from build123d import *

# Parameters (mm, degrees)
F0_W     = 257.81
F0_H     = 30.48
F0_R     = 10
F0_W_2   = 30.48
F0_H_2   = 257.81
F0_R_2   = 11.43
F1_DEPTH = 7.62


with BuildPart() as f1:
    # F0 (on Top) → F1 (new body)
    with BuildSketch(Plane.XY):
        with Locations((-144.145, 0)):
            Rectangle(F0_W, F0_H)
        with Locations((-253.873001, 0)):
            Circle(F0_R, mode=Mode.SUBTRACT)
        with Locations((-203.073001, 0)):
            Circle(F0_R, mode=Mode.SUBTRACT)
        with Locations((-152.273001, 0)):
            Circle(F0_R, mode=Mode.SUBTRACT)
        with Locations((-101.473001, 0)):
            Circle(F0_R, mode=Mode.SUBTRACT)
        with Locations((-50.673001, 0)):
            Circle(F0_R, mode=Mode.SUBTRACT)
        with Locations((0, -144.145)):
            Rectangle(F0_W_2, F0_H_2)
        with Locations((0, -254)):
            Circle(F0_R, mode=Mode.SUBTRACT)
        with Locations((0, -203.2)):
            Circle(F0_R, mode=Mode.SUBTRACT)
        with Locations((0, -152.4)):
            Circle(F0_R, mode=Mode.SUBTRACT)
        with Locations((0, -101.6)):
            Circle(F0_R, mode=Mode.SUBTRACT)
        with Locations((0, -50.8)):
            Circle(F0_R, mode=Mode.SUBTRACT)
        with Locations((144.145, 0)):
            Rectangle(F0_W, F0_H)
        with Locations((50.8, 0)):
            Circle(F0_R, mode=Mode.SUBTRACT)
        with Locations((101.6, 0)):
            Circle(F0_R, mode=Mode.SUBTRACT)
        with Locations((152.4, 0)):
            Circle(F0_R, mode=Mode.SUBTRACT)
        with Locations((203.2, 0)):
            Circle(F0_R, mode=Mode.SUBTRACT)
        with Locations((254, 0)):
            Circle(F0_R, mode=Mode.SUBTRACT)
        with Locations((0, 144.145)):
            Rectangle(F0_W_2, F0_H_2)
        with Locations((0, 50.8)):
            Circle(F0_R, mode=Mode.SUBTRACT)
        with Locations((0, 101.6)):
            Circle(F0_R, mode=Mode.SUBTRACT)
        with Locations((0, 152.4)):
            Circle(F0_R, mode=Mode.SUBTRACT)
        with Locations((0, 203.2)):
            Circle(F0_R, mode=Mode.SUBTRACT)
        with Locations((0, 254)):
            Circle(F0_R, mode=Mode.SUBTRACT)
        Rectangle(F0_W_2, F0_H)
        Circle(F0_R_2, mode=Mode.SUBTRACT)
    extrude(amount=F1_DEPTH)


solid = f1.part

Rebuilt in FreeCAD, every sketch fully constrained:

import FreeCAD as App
import Part
import Sketcher
from FreeCAD import Vector
Q = App.Units.Quantity

doc = App.newDocument("Part")
body = doc.addObject("PartDesign::Body", "Body")

sketch1 = body.newObject("Sketcher::SketchObject", "Sketch")
sketch1.AttachmentSupport = (doc.getObject("XY_Plane"), [""])
sketch1.MapMode = "FlatFace"
sketch1.addGeometry(Part.LineSegment(Vector(-273.05, 15.24, 0), Vector(-273.05, -15.24, 0)), False)
sketch1.addGeometry(Part.LineSegment(Vector(-273.05, -15.24, 0), Vector(-15.24, -15.24, 0)), False)
sketch1.addGeometry(Part.LineSegment(Vector(-15.24, -15.24, 0), Vector(-15.24, -273.05, 0)), False)
sketch1.addGeometry(Part.LineSegment(Vector(-15.24, -273.05, 0), Vector(15.24, -273.05, 0)), False)
sketch1.addGeometry(Part.LineSegment(Vector(15.24, -273.05, 0), Vector(15.24, -15.24, 0)), False)
sketch1.addGeometry(Part.LineSegment(Vector(15.24, -15.24, 0), Vector(273.05, -15.24, 0)), False)
sketch1.addGeometry(Part.LineSegment(Vector(273.05, -15.24, 0), Vector(273.05, 15.24, 0)), False)
sketch1.addGeometry(Part.LineSegment(Vector(273.05, 15.24, 0), Vector(15.24, 15.24, 0)), False)
sketch1.addGeometry(Part.LineSegment(Vector(15.24, 15.24, 0), Vector(15.24, 273.05, 0)), False)
sketch1.addGeometry(Part.LineSegment(Vector(15.24, 273.05, 0), Vector(-15.24, 273.05, 0)), False)
sketch1.addGeometry(Part.LineSegment(Vector(-15.24, 273.05, 0), Vector(-15.24, 15.24, 0)), False)
sketch1.addGeometry(Part.LineSegment(Vector(-15.24, 15.24, 0), Vector(-273.05, 15.24, 0)), False)
sketch1.addGeometry(Part.Circle(Vector(0, -254, 0), Vector(0, 0, 1), 10), False)
sketch1.addGeometry(Part.Circle(Vector(0, -203.2, 0), Vector(0, 0, 1), 10), False)
sketch1.addGeometry(Part.Circle(Vector(0, -152.4, 0), Vector(0, 0, 1), 10), False)
sketch1.addGeometry(Part.Circle(Vector(0, -101.6, 0), Vector(0, 0, 1), 10), False)
sketch1.addGeometry(Part.Circle(Vector(0, -50.8, 0), Vector(0, 0, 1), 10), False)
sketch1.addGeometry(Part.Circle(Vector(-253.873001, 0, 0), Vector(0, 0, 1), 10), False)
sketch1.addGeometry(Part.Circle(Vector(-203.073001, 0, 0), Vector(0, 0, 1), 10), False)
sketch1.addGeometry(Part.Circle(Vector(-152.273001, 0, 0), Vector(0, 0, 1), 10), False)
sketch1.addGeometry(Part.Circle(Vector(-101.473001, 0, 0), Vector(0, 0, 1), 10), False)
sketch1.addGeometry(Part.Circle(Vector(-50.673001, 0, 0), Vector(0, 0, 1), 10), False)
sketch1.addGeometry(Part.Circle(Vector(0, 0, 0), Vector(0, 0, 1), 11.43), False)
sketch1.addGeometry(Part.Circle(Vector(0, 50.8, 0), Vector(0, 0, 1), 10), False)
sketch1.addGeometry(Part.Circle(Vector(0, 101.6, 0), Vector(0, 0, 1), 10), False)
sketch1.addGeometry(Part.Circle(Vector(0, 152.4, 0), Vector(0, 0, 1), 10), False)
sketch1.addGeometry(Part.Circle(Vector(0, 203.2, 0), Vector(0, 0, 1), 10), False)
sketch1.addGeometry(Part.Circle(Vector(0, 254, 0), Vector(0, 0, 1), 10), False)
sketch1.addGeometry(Part.Circle(Vector(50.8, 0, 0), Vector(0, 0, 1), 10), False)
sketch1.addGeometry(Part.Circle(Vector(101.6, 0, 0), Vector(0, 0, 1), 10), False)
sketch1.addGeometry(Part.Circle(Vector(152.4, 0, 0), Vector(0, 0, 1), 10), False)
sketch1.addGeometry(Part.Circle(Vector(203.2, 0, 0), Vector(0, 0, 1), 10), False)
sketch1.addGeometry(Part.Circle(Vector(254, 0, 0), Vector(0, 0, 1), 10), False)
sketch1.addConstraint(Sketcher.Constraint("Coincident", 0, 2, 1, 1))
sketch1.addConstraint(Sketcher.Constraint("Coincident", 1, 2, 2, 1))
sketch1.addConstraint(Sketcher.Constraint("Coincident", 2, 2, 3, 1))
sketch1.addConstraint(Sketcher.Constraint("Coincident", 3, 2, 4, 1))
sketch1.addConstraint(Sketcher.Constraint("Coincident", 4, 2, 5, 1))
sketch1.addConstraint(Sketcher.Constraint("Coincident", 5, 2, 6, 1))
sketch1.addConstraint(Sketcher.Constraint("Coincident", 6, 2, 7, 1))
sketch1.addConstraint(Sketcher.Constraint("Coincident", 7, 2, 8, 1))
sketch1.addConstraint(Sketcher.Constraint("Coincident", 8, 2, 9, 1))
sketch1.addConstraint(Sketcher.Constraint("Coincident", 9, 2, 10, 1))
sketch1.addConstraint(Sketcher.Constraint("Coincident", 10, 2, 11, 1))
sketch1.addConstraint(Sketcher.Constraint("Coincident", 11, 2, 0, 1))
sketch1.addConstraint(Sketcher.Constraint("Vertical", 0))
sketch1.addConstraint(Sketcher.Constraint("Horizontal", 1))
sketch1.addConstraint(Sketcher.Constraint("Vertical", 2))
sketch1.addConstraint(Sketcher.Constraint("Horizontal", 3))
sketch1.addConstraint(Sketcher.Constraint("Vertical", 4))
sketch1.addConstraint(Sketcher.Constraint("Horizontal", 5))
sketch1.addConstraint(Sketcher.Constraint("Vertical", 6))
sketch1.addConstraint(Sketcher.Constraint("Horizontal", 7))
sketch1.addConstraint(Sketcher.Constraint("Vertical", 8))
sketch1.addConstraint(Sketcher.Constraint("Horizontal", 9))
sketch1.addConstraint(Sketcher.Constraint("Vertical", 10))
sketch1.addConstraint(Sketcher.Constraint("Horizontal", 11))
sketch1.addConstraint(Sketcher.Constraint("Coincident", 22, 3, -1, 1))
sketch1.addConstraint(Sketcher.Constraint("Equal", 12, 13))
sketch1.addConstraint(Sketcher.Constraint("Equal", 13, 14))
sketch1.addConstraint(Sketcher.Constraint("Equal", 14, 15))
sketch1.addConstraint(Sketcher.Constraint("Equal", 15, 16))
sketch1.addConstraint(Sketcher.Constraint("Equal", 16, 17))
sketch1.addConstraint(Sketcher.Constraint("Equal", 17, 18))
sketch1.addConstraint(Sketcher.Constraint("Equal", 18, 19))
sketch1.addConstraint(Sketcher.Constraint("Equal", 19, 20))
sketch1.addConstraint(Sketcher.Constraint("Equal", 20, 21))
sketch1.addConstraint(Sketcher.Constraint("Equal", 21, 23))
sketch1.addConstraint(Sketcher.Constraint("Equal", 23, 24))
sketch1.addConstraint(Sketcher.Constraint("Equal", 24, 25))
sketch1.addConstraint(Sketcher.Constraint("Equal", 25, 26))
sketch1.addConstraint(Sketcher.Constraint("Equal", 26, 27))
sketch1.addConstraint(Sketcher.Constraint("Equal", 27, 28))
sketch1.addConstraint(Sketcher.Constraint("Equal", 28, 29))
sketch1.addConstraint(Sketcher.Constraint("Equal", 29, 30))
sketch1.addConstraint(Sketcher.Constraint("Equal", 30, 31))
sketch1.addConstraint(Sketcher.Constraint("Equal", 31, 32))
sketch1.addConstraint(Sketcher.Constraint("Symmetric", 16, 3, 23, 3, -1, 1))
sketch1.addConstraint(Sketcher.Constraint("Symmetric", 15, 3, 24, 3, -1, 1))
sketch1.addConstraint(Sketcher.Constraint("Symmetric", 14, 3, 25, 3, -1, 1))
sketch1.addConstraint(Sketcher.Constraint("Symmetric", 13, 3, 26, 3, -1, 1))
sketch1.addConstraint(Sketcher.Constraint("Symmetric", 12, 3, 27, 3, -1, 1))
sketch1.addConstraint(Sketcher.Constraint("Symmetric", 0, 2, 6, 2, -1, 1))
sketch1.addConstraint(Sketcher.Constraint("Symmetric", 2, 2, 8, 2, -1, 1))
sketch1.addConstraint(Sketcher.Constraint("Symmetric", 4, 2, 10, 2, -1, 1))
sketch1.addConstraint(Sketcher.Constraint("Symmetric", 1, 2, 4, 2, -2))
sketch1.addConstraint(Sketcher.Constraint("PointOnObject", 12, 3, -2))
sketch1.addConstraint(Sketcher.Constraint("PointOnObject", 13, 3, -2))
sketch1.addConstraint(Sketcher.Constraint("PointOnObject", 14, 3, -2))
sketch1.addConstraint(Sketcher.Constraint("PointOnObject", 15, 3, -2))
sketch1.addConstraint(Sketcher.Constraint("PointOnObject", 16, 3, -2))
sketch1.addConstraint(Sketcher.Constraint("PointOnObject", 17, 3, -1))
sketch1.addConstraint(Sketcher.Constraint("PointOnObject", 18, 3, -1))
sketch1.addConstraint(Sketcher.Constraint("PointOnObject", 19, 3, -1))
sketch1.addConstraint(Sketcher.Constraint("PointOnObject", 20, 3, -1))
sketch1.addConstraint(Sketcher.Constraint("PointOnObject", 21, 3, -1))
sketch1.addConstraint(Sketcher.Constraint("PointOnObject", 28, 3, -1))
sketch1.addConstraint(Sketcher.Constraint("PointOnObject", 29, 3, -1))
sketch1.addConstraint(Sketcher.Constraint("PointOnObject", 30, 3, -1))
sketch1.addConstraint(Sketcher.Constraint("PointOnObject", 31, 3, -1))
sketch1.addConstraint(Sketcher.Constraint("PointOnObject", 32, 3, -1))
sketch1.addConstraint(Sketcher.Constraint("Equal", 9, 0))
sketch1.addConstraint(Sketcher.Constraint("Equal", 11, 2))
sketch1.addConstraint(Sketcher.Constraint("Diameter", 22, Q("0.9 in")))
sketch1.addConstraint(Sketcher.Constraint("DistanceX", 3, 1, 3, 2, Q("1.2 in")))
sketch1.addConstraint(Sketcher.Constraint("DistanceY", 12, 3, -1, 1, Q("10 in")))
sketch1.addConstraint(Sketcher.Constraint("DistanceY", 13, 3, -1, 1, Q("8 in")))
sketch1.addConstraint(Sketcher.Constraint("DistanceY", 14, 3, -1, 1, Q("6 in")))
sketch1.addConstraint(Sketcher.Constraint("DistanceY", 15, 3, -1, 1, Q("4 in")))
sketch1.addConstraint(Sketcher.Constraint("DistanceY", 16, 3, -1, 1, Q("2 in")))
sketch1.addConstraint(Sketcher.Constraint("DistanceX", -1, 1, 28, 3, Q("2 in")))
sketch1.addConstraint(Sketcher.Constraint("DistanceX", -1, 1, 29, 3, Q("4 in")))
sketch1.addConstraint(Sketcher.Constraint("DistanceX", -1, 1, 30, 3, Q("6 in")))
sketch1.addConstraint(Sketcher.Constraint("DistanceX", -1, 1, 31, 3, Q("8 in")))
sketch1.addConstraint(Sketcher.Constraint("DistanceX", -1, 1, 32, 3, Q("10 in")))
sketch1.addConstraint(Sketcher.Constraint("DistanceX", 17, 3, 18, 3, Q("2 in")))
sketch1.addConstraint(Sketcher.Constraint("DistanceX", 18, 3, 19, 3, Q("2 in")))
sketch1.addConstraint(Sketcher.Constraint("DistanceX", 19, 3, 20, 3, Q("2 in")))
sketch1.addConstraint(Sketcher.Constraint("DistanceX", 20, 3, 21, 3, Q("2 in")))
sketch1.addConstraint(Sketcher.Constraint("DistanceX", 1, 1, 1, 2, Q("10.15 in")))
sketch1.addConstraint(Sketcher.Constraint("Diameter", 12, Q("20 mm")))
sketch1.addConstraint(Sketcher.Constraint("DistanceX", 17, 3, -1, 1, Q("9.995 in")))
pad1 = body.newObject("PartDesign::Pad", "Pad")
pad1.Profile = sketch1
pad1.Length = Q("0.3 in")

doc.recompute()
